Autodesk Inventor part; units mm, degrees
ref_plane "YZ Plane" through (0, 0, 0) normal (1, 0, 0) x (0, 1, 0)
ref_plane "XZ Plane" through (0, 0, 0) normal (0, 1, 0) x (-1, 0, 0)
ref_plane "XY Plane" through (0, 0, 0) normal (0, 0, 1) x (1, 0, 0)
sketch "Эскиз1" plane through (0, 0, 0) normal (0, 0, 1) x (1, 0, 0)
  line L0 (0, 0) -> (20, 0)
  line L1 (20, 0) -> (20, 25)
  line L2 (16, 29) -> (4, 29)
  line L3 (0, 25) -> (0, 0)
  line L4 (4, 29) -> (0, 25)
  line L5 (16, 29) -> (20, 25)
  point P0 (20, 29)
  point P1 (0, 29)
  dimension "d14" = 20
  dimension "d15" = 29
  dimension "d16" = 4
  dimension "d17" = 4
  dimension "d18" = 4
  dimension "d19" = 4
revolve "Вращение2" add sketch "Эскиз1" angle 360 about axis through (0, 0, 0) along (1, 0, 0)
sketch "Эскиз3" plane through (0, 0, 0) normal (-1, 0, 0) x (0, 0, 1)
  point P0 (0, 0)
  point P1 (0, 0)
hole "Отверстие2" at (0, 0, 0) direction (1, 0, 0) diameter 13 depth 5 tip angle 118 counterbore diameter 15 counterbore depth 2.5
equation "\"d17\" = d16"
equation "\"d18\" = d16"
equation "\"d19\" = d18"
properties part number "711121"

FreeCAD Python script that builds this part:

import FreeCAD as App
import Part
import Sketcher
from FreeCAD import Vector


def add_polygon(sketch, points):
    """Adds a closed chain of lines whose ends are joined by coincident constraints."""
    first, n = sketch.GeometryCount, len(points)
    for a, b in zip(points, points[1:] + points[:1]):
        sketch.addGeometry(Part.LineSegment(App.Vector(*a, 0), App.Vector(*b, 0)), False)
    for i in range(n):
        sketch.addConstraint(Sketcher.Constraint("Coincident", first + i, 2, first + (i + 1) % n, 1))

doc = App.newDocument("Part")
params = doc.addObject("Spreadsheet::Sheet", "Params")
for row, (alias, value) in enumerate([
    ("sketch1_width", "20 mm"),
    ("revolution_angle", "360 deg"),
    ("sketch2_diameter", "13 mm"),
    ("hole_diameter", "13 mm"),
    ("hole_depth", "5 mm"),
    ("hole_cbore_diameter", "15 mm"),
    ("hole_cbore_depth", "2.5 mm"),
], start=1):
    params.set(f"A{row}", alias)
    params.set(f"B{row}", "=" + value)
    params.setAlias(f"B{row}", alias)

body = doc.addObject("PartDesign::Body", "Body")

# Sketch on XY plane
sketch1 = body.newObject("Sketcher::SketchObject", "Sketch")
sketch1.AttachmentSupport = (doc.getObject("XY_Plane"), [""])
sketch1.MapMode = "FlatFace"
add_polygon(sketch1, [(0, 25), (0, 0), (20, 0), (20, 25), (16, 29), (4, 29)])  # lines 0-5
sketch1.addConstraint([
    Sketcher.Constraint("Vertical", 0),
    Sketcher.Constraint("Horizontal", 1),
    Sketcher.Constraint("Vertical", 2),
    Sketcher.Constraint("Horizontal", 4),
    Sketcher.Constraint("Coincident", 0, 2, -1, 1),
    Sketcher.Constraint("Perpendicular", 3, 5),
    Sketcher.Constraint("Horizontal", 2, 2, 5, 2),
    Sketcher.Constraint("Equal", 3, 5),
    Sketcher.Constraint("DistanceX", 1, 1, 1, 2, 20.0),
    Sketcher.Constraint("DistanceY", -1, 1, 3, 2, 29.0),
    Sketcher.Constraint("DistanceX", -1, 1, 4, 2, 4.0),
])
sketch1.setExpression("Constraints[14]", "Params.sketch1_width")
revolution = body.newObject("PartDesign::Revolution", "Revolution")
revolution.Profile = sketch1
revolution.ReferenceAxis = (sketch1, ["H_Axis"])
revolution.setExpression("Angle", "Params.revolution_angle")

# Sketch on YZ plane
sketch2 = body.newObject("Sketcher::SketchObject", "Sketch001")
sketch2.AttachmentSupport = (doc.getObject("YZ_Plane"), [""])
sketch2.MapMode = "FlatFace"
sketch2.addGeometry(Part.Circle(Vector(0, 0, 0), Vector(0, 0, 1), 6), False)
sketch2.addConstraint([
    Sketcher.Constraint("Coincident", 0, 3, -1, 1),
    Sketcher.Constraint("Diameter", 0, 13.0),
])
sketch2.setExpression("Constraints[1]", "Params.sketch2_diameter")
doc.recompute()
hole = body.newObject("PartDesign::Hole", "Hole")
hole.Profile = sketch2
hole.ThreadType = "None"
hole.setExpression("Diameter", "Params.hole_diameter")
hole.DepthType = "Dimension"
hole.setExpression("Depth", "Params.hole_depth")
hole.DrillPoint = "Angled"
hole.DrillPointAngle = 118
hole.HoleCutType = "Counterbore"
hole.setExpression("HoleCutDiameter", "Params.hole_cbore_diameter")
hole.setExpression("HoleCutDepth", "Params.hole_cbore_depth")
hole.Reversed = True

doc.recompute()
